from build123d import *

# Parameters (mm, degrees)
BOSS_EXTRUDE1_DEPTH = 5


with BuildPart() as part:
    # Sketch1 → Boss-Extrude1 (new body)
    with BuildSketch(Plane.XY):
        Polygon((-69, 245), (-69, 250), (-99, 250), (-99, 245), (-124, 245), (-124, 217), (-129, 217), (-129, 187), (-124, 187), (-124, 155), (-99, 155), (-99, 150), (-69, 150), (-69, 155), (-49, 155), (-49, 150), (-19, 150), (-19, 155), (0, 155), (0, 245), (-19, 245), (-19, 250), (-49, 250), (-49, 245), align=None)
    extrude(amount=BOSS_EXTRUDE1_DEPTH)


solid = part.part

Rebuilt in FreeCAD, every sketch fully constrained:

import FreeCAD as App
import Part
import Sketcher
Q = App.Units.Quantity

doc = App.newDocument("Part")
body = doc.addObject("PartDesign::Body", "Body")

# Sketch on XY plane
sketch1 = doc.addObject("Sketcher::SketchObject", "Sketch")
body.addObject(sketch1)
sketch1.AttachmentSupport = (doc.XY_Plane, [""])
sketch1.MapMode = "FlatFace"
sketch1.addGeometry([
    Part.LineSegment(App.Vector(-69, 245, 0), App.Vector(-69, 250, 0)),  # 0
    Part.LineSegment(App.Vector(-69, 250, 0), App.Vector(-99, 250, 0)),  # 1
    Part.LineSegment(App.Vector(-99, 250, 0), App.Vector(-99, 245, 0)),  # 2
    Part.LineSegment(App.Vector(-99, 245, 0), App.Vector(-124, 245, 0)),  # 3
    Part.LineSegment(App.Vector(-124, 245, 0), App.Vector(-124, 217, 0)),  # 4
    Part.LineSegment(App.Vector(-124, 217, 0), App.Vector(-129, 217, 0)),  # 5
    Part.LineSegment(App.Vector(-129, 217, 0), App.Vector(-129, 187, 0)),  # 6
    Part.LineSegment(App.Vector(-129, 187, 0), App.Vector(-124, 187, 0)),  # 7
    Part.LineSegment(App.Vector(-124, 187, 0), App.Vector(-124, 155, 0)),  # 8
    Part.LineSegment(App.Vector(-124, 155, 0), App.Vector(-99, 155, 0)),  # 9
    Part.LineSegment(App.Vector(-99, 155, 0), App.Vector(-99, 150, 0)),  # 10
    Part.LineSegment(App.Vector(-99, 150, 0), App.Vector(-69, 150, 0)),  # 11
    Part.LineSegment(App.Vector(-69, 150, 0), App.Vector(-69, 155, 0)),  # 12
    Part.LineSegment(App.Vector(-69, 155, 0), App.Vector(-49, 155, 0)),  # 13
    Part.LineSegment(App.Vector(-49, 155, 0), App.Vector(-49, 150, 0)),  # 14
    Part.LineSegment(App.Vector(-49, 150, 0), App.Vector(-19, 150, 0)),  # 15
    Part.LineSegment(App.Vector(-19, 150, 0), App.Vector(-19, 155, 0)),  # 16
    Part.LineSegment(App.Vector(-19, 155, 0), App.Vector(0, 155, 0)),  # 17
    Part.LineSegment(App.Vector(0, 155, 0), App.Vector(0, 245, 0)),  # 18
    Part.LineSegment(App.Vector(0, 245, 0), App.Vector(-19, 245, 0)),  # 19
    Part.LineSegment(App.Vector(-19, 245, 0), App.Vector(-19, 250, 0)),  # 20
    Part.LineSegment(App.Vector(-19, 250, 0), App.Vector(-49, 250, 0)),  # 21
    Part.LineSegment(App.Vector(-49, 250, 0), App.Vector(-49, 245, 0)),  # 22
    Part.LineSegment(App.Vector(-49, 245, 0), App.Vector(-69, 245, 0)),  # 23
], False)
sketch1.addConstraint([
    Sketcher.Constraint("Coincident", 0, 2, 1, 1),
    Sketcher.Constraint("Coincident", 1, 2, 2, 1),
    Sketcher.Constraint("Coincident", 2, 2, 3, 1),
    Sketcher.Constraint("Coincident", 3, 2, 4, 1),
    Sketcher.Constraint("Coincident", 4, 2, 5, 1),
    Sketcher.Constraint("Coincident", 5, 2, 6, 1),
    Sketcher.Constraint("Coincident", 6, 2, 7, 1),
    Sketcher.Constraint("Coincident", 7, 2, 8, 1),
    Sketcher.Constraint("Coincident", 8, 2, 9, 1),
    Sketcher.Constraint("Coincident", 9, 2, 10, 1),
    Sketcher.Constraint("Coincident", 10, 2, 11, 1),
    Sketcher.Constraint("Coincident", 11, 2, 12, 1),
    Sketcher.Constraint("Coincident", 12, 2, 13, 1),
    Sketcher.Constraint("Coincident", 13, 2, 14, 1),
    Sketcher.Constraint("Coincident", 14, 2, 15, 1),
    Sketcher.Constraint("Coincident", 15, 2, 16, 1),
    Sketcher.Constraint("Coincident", 16, 2, 17, 1),
    Sketcher.Constraint("Coincident", 17, 2, 18, 1),
    Sketcher.Constraint("Coincident", 18, 2, 19, 1),
    Sketcher.Constraint("Coincident", 19, 2, 20, 1),
    Sketcher.Constraint("Coincident", 20, 2, 21, 1),
    Sketcher.Constraint("Coincident", 21, 2, 22, 1),
    Sketcher.Constraint("Coincident", 22, 2, 23, 1),
    Sketcher.Constraint("Coincident", 23, 2, 0, 1),
    Sketcher.Constraint("Vertical", 0),
    Sketcher.Constraint("Horizontal", 1),
    Sketcher.Constraint("Vertical", 2),
    Sketcher.Constraint("Horizontal", 3),
    Sketcher.Constraint("Vertical", 4),
    Sketcher.Constraint("Horizontal", 5),
    Sketcher.Constraint("Vertical", 6),
    Sketcher.Constraint("Horizontal", 7),
    Sketcher.Constraint("Vertical", 8),
    Sketcher.Constraint("Horizontal", 9),
    Sketcher.Constraint("Vertical", 10),
    Sketcher.Constraint("Horizontal", 11),
    Sketcher.Constraint("Vertical", 12),
    Sketcher.Constraint("Horizontal", 13),
    Sketcher.Constraint("Vertical", 14),
    Sketcher.Constraint("Horizontal", 15),
    Sketcher.Constraint("Vertical", 16),
    Sketcher.Constraint("Horizontal", 17),
    Sketcher.Constraint("Vertical", 18),
    Sketcher.Constraint("Horizontal", 19),
    Sketcher.Constraint("Vertical", 20),
    Sketcher.Constraint("Horizontal", 21),
    Sketcher.Constraint("Vertical", 22),
    Sketcher.Constraint("Horizontal", 23),
    Sketcher.Constraint("PointOnObject", 17, 2, -2),
    Sketcher.Constraint("Horizontal", 9, 2, 12, 2),
    Sketcher.Constraint("Horizontal", 11, 2, 14, 2),
    Sketcher.Constraint("Horizontal", 13, 2, 16, 2),
    Sketcher.Constraint("Horizontal", 3, 2, 18, 2),
    Sketcher.Constraint("Horizontal", 1, 2, 20, 2),
    Sketcher.Constraint("Horizontal", 19, 2, 22, 2),
    Sketcher.Constraint("Vertical", 4, 2, 7, 2),
    Sketcher.Constraint("Vertical", 2, 2, 9, 2),
    Sketcher.Constraint("Vertical", 0, 2, 11, 2),
    Sketcher.Constraint("Vertical", 16, 2, 19, 2),
    Sketcher.Constraint("Vertical", 14, 2, 21, 2),
    Sketcher.Constraint("Equal", 11, 15),
    Sketcher.Constraint("Equal", 7, 0),
    Sketcher.Constraint("Equal", 21, 6),
    Sketcher.Constraint("Equal", 2, 10),
    Sketcher.Constraint("DistanceX", 1, 2, 1, 1, Q("30 mm")),
    Sketcher.Constraint("DistanceX", 3, 2, 3, 1, Q("25 mm")),
    Sketcher.Constraint("DistanceX", 5, 2, 5, 1, Q("5 mm")),
    Sketcher.Constraint("DistanceX", 13, 1, 13, 2, Q("20 mm")),
    Sketcher.Constraint("DistanceX", 17, 1, 17, 2, Q("19 mm")),
    Sketcher.Constraint("DistanceY", 4, 2, 4, 1, Q("28 mm")),
    Sketcher.Constraint("DistanceY", 8, 2, 8, 1, Q("32 mm")),
    Sketcher.Constraint("DistanceY", -1, 1, 0, 2, Q("250 mm")),
])
pad1 = doc.addObject("PartDesign::Pad", "Pad")
body.addObject(pad1)
pad1.Profile = sketch1
pad1.Length = 5

doc.recompute()
